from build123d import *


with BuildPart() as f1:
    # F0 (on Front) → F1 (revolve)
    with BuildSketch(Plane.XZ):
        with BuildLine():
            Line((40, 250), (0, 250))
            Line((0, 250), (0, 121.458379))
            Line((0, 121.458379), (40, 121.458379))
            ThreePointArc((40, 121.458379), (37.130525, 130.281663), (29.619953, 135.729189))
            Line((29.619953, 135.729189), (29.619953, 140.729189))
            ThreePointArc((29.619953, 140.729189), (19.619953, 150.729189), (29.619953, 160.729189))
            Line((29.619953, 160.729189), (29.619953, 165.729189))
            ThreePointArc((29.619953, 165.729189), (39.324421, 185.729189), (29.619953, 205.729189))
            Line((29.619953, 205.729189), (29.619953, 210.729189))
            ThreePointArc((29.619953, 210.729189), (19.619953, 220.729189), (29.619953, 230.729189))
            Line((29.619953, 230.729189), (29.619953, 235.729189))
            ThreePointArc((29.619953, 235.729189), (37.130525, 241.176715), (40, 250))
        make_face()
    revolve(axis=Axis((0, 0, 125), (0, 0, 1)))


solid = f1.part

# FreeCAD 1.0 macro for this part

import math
import FreeCAD as App
import Part
import Sketcher

V = App.Vector

doc = App.newDocument("Part")
body = doc.addObject("PartDesign::Body", "Body")

sketch1 = doc.addObject("Sketcher::SketchObject", "Sketch")
body.addObject(sketch1)
sketch1.AttachmentSupport = (doc.XZ_Plane, [""])
sketch1.MapMode = "FlatFace"
sketch1.addGeometry(Part.LineSegment(V(40, 250, 0), V(0, 250, 0)), False)
sketch1.addGeometry(Part.LineSegment(V(0, 250, 0), V(0, 121, 0)), False)
sketch1.addGeometry(Part.LineSegment(V(0, 121, 0), V(40, 121, 0)), False)
sketch1.addGeometry(Part.ArcOfCircle(Part.Circle(V(25, 121, 0), V(0, 0, 1), 15), math.radians(0), math.radians(72)), False)
sketch1.addGeometry(Part.LineSegment(V(30, 136, 0), V(30, 141, 0)), False)
sketch1.addGeometry(Part.ArcOfCircle(Part.Circle(V(30, 151, 0), V(0, 0, 1), 10), math.radians(90), math.radians(270)), False)
sketch1.addGeometry(Part.LineSegment(V(30, 161, 0), V(30, 166, 0)), False)
sketch1.addGeometry(Part.ArcOfCircle(Part.Circle(V(14, 186, 0), V(0, 0, 1), 25), math.radians(-52), math.radians(52)), False)
sketch1.addGeometry(Part.LineSegment(V(30, 206, 0), V(30, 211, 0)), False)
sketch1.addGeometry(Part.ArcOfCircle(Part.Circle(V(30, 221, 0), V(0, 0, 1), 10), math.radians(90), math.radians(270)), False)
sketch1.addGeometry(Part.LineSegment(V(30, 231, 0), V(30, 236, 0)), False)
sketch1.addGeometry(Part.ArcOfCircle(Part.Circle(V(25, 250, 0), V(0, 0, 1), 15), math.radians(-72), math.radians(0)), False)
sketch1.addConstraint(Sketcher.Constraint("Coincident", 0, 2, 1, 1))
sketch1.addConstraint(Sketcher.Constraint("Coincident", 1, 2, 2, 1))
sketch1.addConstraint(Sketcher.Constraint("Coincident", 2, 2, 3, 1))
sketch1.addConstraint(Sketcher.Constraint("Coincident", 3, 2, 4, 1))
sketch1.addConstraint(Sketcher.Constraint("Coincident", 4, 2, 5, 2))
sketch1.addConstraint(Sketcher.Constraint("Coincident", 5, 1, 6, 1))
sketch1.addConstraint(Sketcher.Constraint("Coincident", 6, 2, 7, 1))
sketch1.addConstraint(Sketcher.Constraint("Coincident", 7, 2, 8, 1))
sketch1.addConstraint(Sketcher.Constraint("Coincident", 8, 2, 9, 2))
sketch1.addConstraint(Sketcher.Constraint("Coincident", 9, 1, 10, 1))
sketch1.addConstraint(Sketcher.Constraint("Coincident", 10, 2, 11, 1))
sketch1.addConstraint(Sketcher.Constraint("Coincident", 11, 2, 0, 1))
sketch1.addConstraint(Sketcher.Constraint("Horizontal", 0))
sketch1.addConstraint(Sketcher.Constraint("Vertical", 1))
sketch1.addConstraint(Sketcher.Constraint("Horizontal", 2))
sketch1.addConstraint(Sketcher.Constraint("Vertical", 4))
sketch1.addConstraint(Sketcher.Constraint("Vertical", 6))
sketch1.addConstraint(Sketcher.Constraint("Vertical", 8))
sketch1.addConstraint(Sketcher.Constraint("Vertical", 10))
sketch1.addConstraint(Sketcher.Constraint("Equal", 5, 9))
sketch1.addConstraint(Sketcher.Constraint("Equal", 3, 11))
sketch1.addConstraint(Sketcher.Constraint("PointOnObject", 0, 2, -2))
sketch1.addConstraint(Sketcher.Constraint("Horizontal", 11, 3, 0, 2))
sketch1.addConstraint(Sketcher.Constraint("Horizontal", 3, 3, 1, 2))
sketch1.addConstraint(Sketcher.Constraint("Vertical", 5, 3, 9, 3))
sketch1.addConstraint(Sketcher.Constraint("Vertical", 3, 3, 11, 3))
sketch1.addConstraint(Sketcher.Constraint("Vertical", 9, 3, 3, 2))
sketch1.addConstraint(Sketcher.Constraint("Vertical", 4, 2, 5, 1))
sketch1.addConstraint(Sketcher.Constraint("Vertical", 6, 2, 7, 2))
sketch1.addConstraint(Sketcher.Constraint("Vertical", 8, 2, 9, 1))
sketch1.addConstraint(Sketcher.Constraint("Equal", 4, 6))
sketch1.addConstraint(Sketcher.Constraint("Equal", 6, 8))
sketch1.addConstraint(Sketcher.Constraint("Equal", 8, 10))
sketch1.addConstraint(Sketcher.Constraint("Radius", 3, 15.000002))
sketch1.addConstraint(Sketcher.Constraint("Radius", 5, 10.0))
sketch1.addConstraint(Sketcher.Constraint("DistanceX", 0, 2, 0, 1, 40.0))
sketch1.addConstraint(Sketcher.Constraint("DistanceY", 4, 1, 4, 2, 5.0))
sketch1.addConstraint(Sketcher.Constraint("DistanceY", -1, 1, 11, 3, 250.000001))
sketch1.addConstraint(Sketcher.Constraint("DistanceY", 5, 3, 7, 3, 35.0))
sketch1.addConstraint(Sketcher.Constraint("Radius", 7, 25.461298))
sketch1.addConstraint(Sketcher.Constraint("DistanceY", 1, 2, 1, 1, 128.541621))
revolution = doc.addObject("PartDesign::Revolution", "Revolution")
body.addObject(revolution)
revolution.Profile = sketch1
revolution.ReferenceAxis = (sketch1, ["V_Axis"])
revolution.Angle = 360

doc.recompute()
